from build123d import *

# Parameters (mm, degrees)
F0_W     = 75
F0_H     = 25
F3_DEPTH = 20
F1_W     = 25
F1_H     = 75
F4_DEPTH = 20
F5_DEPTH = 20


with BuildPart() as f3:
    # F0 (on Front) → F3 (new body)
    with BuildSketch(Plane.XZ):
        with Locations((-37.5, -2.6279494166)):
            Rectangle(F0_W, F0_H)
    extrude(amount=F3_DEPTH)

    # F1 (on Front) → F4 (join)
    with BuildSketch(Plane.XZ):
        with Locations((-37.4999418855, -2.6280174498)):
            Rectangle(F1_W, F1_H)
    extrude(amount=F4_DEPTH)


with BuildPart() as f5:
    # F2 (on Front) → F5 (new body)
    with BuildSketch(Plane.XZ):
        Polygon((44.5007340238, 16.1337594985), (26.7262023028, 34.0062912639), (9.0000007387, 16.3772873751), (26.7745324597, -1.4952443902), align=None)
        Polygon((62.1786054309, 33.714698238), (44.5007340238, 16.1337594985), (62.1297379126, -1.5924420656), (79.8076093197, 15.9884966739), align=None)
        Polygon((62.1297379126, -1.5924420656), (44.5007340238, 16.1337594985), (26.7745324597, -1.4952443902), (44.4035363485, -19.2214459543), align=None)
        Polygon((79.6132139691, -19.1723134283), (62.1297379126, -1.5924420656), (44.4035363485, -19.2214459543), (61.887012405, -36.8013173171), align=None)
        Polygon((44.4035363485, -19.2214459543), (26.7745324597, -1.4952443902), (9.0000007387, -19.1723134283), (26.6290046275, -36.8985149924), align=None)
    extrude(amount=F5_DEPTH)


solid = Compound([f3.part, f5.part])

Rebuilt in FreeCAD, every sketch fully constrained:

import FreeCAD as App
import Part
import Sketcher
from FreeCAD import Vector


def add_polygon(sketch, points):
    """Adds a closed chain of lines whose ends are joined by coincident constraints."""
    first, n = sketch.GeometryCount, len(points)
    for a, b in zip(points, points[1:] + points[:1]):
        sketch.addGeometry(Part.LineSegment(App.Vector(*a, 0), App.Vector(*b, 0)), False)
    for i in range(n):
        sketch.addConstraint(Sketcher.Constraint("Coincident", first + i, 2, first + (i + 1) % n, 1))

doc = App.newDocument("Part")
body = doc.addObject("PartDesign::Body", "Body")

sketch1 = body.newObject("Sketcher::SketchObject", "Sketch")
sketch1.AttachmentSupport = (doc.getObject("XZ_Plane"), [""])
sketch1.MapMode = "FlatFace"
add_polygon(sketch1, [(-75, 9.872051), (-75, -15.127949), (0, -15.127949), (0, 9.872051)])
sketch1.addConstraint([
    Sketcher.Constraint("Vertical", 0),
    Sketcher.Constraint("Horizontal", 1),
    Sketcher.Constraint("Vertical", 2),
    Sketcher.Constraint("Horizontal", 3),
    Sketcher.Constraint("PointOnObject", 1, 2, -2),
    Sketcher.Constraint("DistanceX", 1, 1, 1, 2, 75.0),
    Sketcher.Constraint("DistanceY", 0, 2, 0, 1, 25.0),
    Sketcher.Constraint("DistanceY", 0, 2, -1, 1, 15.127949),
])
pad1 = body.newObject("PartDesign::Pad", "Pad")
pad1.Profile = sketch1
pad1.Length = 20

sketch2 = body.newObject("Sketcher::SketchObject", "Sketch001")
sketch2.AttachmentSupport = (doc.getObject("XZ_Plane"), [""])
sketch2.MapMode = "FlatFace"
add_polygon(sketch2, [(-49.999942, 34.871983), (-49.999942, -40.128017), (-24.999942, -40.128017), (-24.999942, 34.871983)])
sketch2.addConstraint([
    Sketcher.Constraint("Vertical", 0),
    Sketcher.Constraint("Horizontal", 1),
    Sketcher.Constraint("Vertical", 2),
    Sketcher.Constraint("Horizontal", 3),
    Sketcher.Constraint("DistanceX", 1, 1, 1, 2, 25.0),
    Sketcher.Constraint("DistanceY", 0, 2, 0, 1, 75.0),
    Sketcher.Constraint("DistanceX", 0, 2, -1, 1, 49.999942),
    Sketcher.Constraint("DistanceY", 0, 2, -1, 1, 40.128017),
])
pad2 = body.newObject("PartDesign::Pad", "Pad001")
pad2.Profile = sketch2
pad2.Length = 20
body2 = doc.addObject("PartDesign::Body", "Body001")

sketch3 = body2.newObject("Sketcher::SketchObject", "Sketch002")
sketch3.AttachmentSupport = (doc.getObject("XZ_Plane001"), [""])
sketch3.MapMode = "FlatFace"
add_polygon(sketch3, [(44.500734, 16.133759), (26.726202, 34.006291), (9.000001, 16.377287), (26.774532, -1.495244), (9.000001, -19.172313), (26.629005, -36.898515), (44.403536, -19.221446), (61.887012, -36.801317), (79.613214, -19.172313), (62.129738, -1.592442), (79.807609, 15.988497), (62.178605, 33.714698)])
sketch3.addConstraint([
    Sketcher.Constraint("Perpendicular", 0, 1),
    Sketcher.Constraint("Perpendicular", 1, 2),
    Sketcher.Constraint("Perpendicular", 2, 3),
    Sketcher.Constraint("Perpendicular", 3, 4),
    Sketcher.Constraint("Perpendicular", 4, 5),
    Sketcher.Constraint("Perpendicular", 5, 6),
    Sketcher.Constraint("Perpendicular", 6, 7),
    Sketcher.Constraint("Perpendicular", 7, 8),
    Sketcher.Constraint("Perpendicular", 8, 9),
    Sketcher.Constraint("Perpendicular", 9, 10),
    Sketcher.Constraint("Perpendicular", 10, 11),
    Sketcher.Constraint("Horizontal", 3, 2, 7, 2),
    Sketcher.Constraint("Vertical", 1, 2, 3, 2),
    Sketcher.Constraint("Equal", 0, 2),
    Sketcher.Constraint("Equal", 1, 4),
    Sketcher.Constraint("Equal", 3, 5),
    Sketcher.Constraint("Equal", 4, 7),
    Sketcher.Constraint("Equal", 6, 8),
    Sketcher.Constraint("Distance", 1, 25.0),
    Sketcher.Constraint("DistanceX", -1, 1, 1, 2, 9.000001),
    Sketcher.Constraint("DistanceY", -1, 1, 10, 2, 33.714698),
    Sketcher.Constraint("DistanceX", 1, 2, 0, 2, 17.726202),
    Sketcher.Constraint("DistanceY", 3, 2, 1, 2, 35.549601),
    Sketcher.Constraint("DistanceY", -1, 1, 0, 2, 34.006291),
])
pad3 = body2.newObject("PartDesign::Pad", "Pad002")
pad3.Profile = sketch3
pad3.Length = 20

doc.recompute()
